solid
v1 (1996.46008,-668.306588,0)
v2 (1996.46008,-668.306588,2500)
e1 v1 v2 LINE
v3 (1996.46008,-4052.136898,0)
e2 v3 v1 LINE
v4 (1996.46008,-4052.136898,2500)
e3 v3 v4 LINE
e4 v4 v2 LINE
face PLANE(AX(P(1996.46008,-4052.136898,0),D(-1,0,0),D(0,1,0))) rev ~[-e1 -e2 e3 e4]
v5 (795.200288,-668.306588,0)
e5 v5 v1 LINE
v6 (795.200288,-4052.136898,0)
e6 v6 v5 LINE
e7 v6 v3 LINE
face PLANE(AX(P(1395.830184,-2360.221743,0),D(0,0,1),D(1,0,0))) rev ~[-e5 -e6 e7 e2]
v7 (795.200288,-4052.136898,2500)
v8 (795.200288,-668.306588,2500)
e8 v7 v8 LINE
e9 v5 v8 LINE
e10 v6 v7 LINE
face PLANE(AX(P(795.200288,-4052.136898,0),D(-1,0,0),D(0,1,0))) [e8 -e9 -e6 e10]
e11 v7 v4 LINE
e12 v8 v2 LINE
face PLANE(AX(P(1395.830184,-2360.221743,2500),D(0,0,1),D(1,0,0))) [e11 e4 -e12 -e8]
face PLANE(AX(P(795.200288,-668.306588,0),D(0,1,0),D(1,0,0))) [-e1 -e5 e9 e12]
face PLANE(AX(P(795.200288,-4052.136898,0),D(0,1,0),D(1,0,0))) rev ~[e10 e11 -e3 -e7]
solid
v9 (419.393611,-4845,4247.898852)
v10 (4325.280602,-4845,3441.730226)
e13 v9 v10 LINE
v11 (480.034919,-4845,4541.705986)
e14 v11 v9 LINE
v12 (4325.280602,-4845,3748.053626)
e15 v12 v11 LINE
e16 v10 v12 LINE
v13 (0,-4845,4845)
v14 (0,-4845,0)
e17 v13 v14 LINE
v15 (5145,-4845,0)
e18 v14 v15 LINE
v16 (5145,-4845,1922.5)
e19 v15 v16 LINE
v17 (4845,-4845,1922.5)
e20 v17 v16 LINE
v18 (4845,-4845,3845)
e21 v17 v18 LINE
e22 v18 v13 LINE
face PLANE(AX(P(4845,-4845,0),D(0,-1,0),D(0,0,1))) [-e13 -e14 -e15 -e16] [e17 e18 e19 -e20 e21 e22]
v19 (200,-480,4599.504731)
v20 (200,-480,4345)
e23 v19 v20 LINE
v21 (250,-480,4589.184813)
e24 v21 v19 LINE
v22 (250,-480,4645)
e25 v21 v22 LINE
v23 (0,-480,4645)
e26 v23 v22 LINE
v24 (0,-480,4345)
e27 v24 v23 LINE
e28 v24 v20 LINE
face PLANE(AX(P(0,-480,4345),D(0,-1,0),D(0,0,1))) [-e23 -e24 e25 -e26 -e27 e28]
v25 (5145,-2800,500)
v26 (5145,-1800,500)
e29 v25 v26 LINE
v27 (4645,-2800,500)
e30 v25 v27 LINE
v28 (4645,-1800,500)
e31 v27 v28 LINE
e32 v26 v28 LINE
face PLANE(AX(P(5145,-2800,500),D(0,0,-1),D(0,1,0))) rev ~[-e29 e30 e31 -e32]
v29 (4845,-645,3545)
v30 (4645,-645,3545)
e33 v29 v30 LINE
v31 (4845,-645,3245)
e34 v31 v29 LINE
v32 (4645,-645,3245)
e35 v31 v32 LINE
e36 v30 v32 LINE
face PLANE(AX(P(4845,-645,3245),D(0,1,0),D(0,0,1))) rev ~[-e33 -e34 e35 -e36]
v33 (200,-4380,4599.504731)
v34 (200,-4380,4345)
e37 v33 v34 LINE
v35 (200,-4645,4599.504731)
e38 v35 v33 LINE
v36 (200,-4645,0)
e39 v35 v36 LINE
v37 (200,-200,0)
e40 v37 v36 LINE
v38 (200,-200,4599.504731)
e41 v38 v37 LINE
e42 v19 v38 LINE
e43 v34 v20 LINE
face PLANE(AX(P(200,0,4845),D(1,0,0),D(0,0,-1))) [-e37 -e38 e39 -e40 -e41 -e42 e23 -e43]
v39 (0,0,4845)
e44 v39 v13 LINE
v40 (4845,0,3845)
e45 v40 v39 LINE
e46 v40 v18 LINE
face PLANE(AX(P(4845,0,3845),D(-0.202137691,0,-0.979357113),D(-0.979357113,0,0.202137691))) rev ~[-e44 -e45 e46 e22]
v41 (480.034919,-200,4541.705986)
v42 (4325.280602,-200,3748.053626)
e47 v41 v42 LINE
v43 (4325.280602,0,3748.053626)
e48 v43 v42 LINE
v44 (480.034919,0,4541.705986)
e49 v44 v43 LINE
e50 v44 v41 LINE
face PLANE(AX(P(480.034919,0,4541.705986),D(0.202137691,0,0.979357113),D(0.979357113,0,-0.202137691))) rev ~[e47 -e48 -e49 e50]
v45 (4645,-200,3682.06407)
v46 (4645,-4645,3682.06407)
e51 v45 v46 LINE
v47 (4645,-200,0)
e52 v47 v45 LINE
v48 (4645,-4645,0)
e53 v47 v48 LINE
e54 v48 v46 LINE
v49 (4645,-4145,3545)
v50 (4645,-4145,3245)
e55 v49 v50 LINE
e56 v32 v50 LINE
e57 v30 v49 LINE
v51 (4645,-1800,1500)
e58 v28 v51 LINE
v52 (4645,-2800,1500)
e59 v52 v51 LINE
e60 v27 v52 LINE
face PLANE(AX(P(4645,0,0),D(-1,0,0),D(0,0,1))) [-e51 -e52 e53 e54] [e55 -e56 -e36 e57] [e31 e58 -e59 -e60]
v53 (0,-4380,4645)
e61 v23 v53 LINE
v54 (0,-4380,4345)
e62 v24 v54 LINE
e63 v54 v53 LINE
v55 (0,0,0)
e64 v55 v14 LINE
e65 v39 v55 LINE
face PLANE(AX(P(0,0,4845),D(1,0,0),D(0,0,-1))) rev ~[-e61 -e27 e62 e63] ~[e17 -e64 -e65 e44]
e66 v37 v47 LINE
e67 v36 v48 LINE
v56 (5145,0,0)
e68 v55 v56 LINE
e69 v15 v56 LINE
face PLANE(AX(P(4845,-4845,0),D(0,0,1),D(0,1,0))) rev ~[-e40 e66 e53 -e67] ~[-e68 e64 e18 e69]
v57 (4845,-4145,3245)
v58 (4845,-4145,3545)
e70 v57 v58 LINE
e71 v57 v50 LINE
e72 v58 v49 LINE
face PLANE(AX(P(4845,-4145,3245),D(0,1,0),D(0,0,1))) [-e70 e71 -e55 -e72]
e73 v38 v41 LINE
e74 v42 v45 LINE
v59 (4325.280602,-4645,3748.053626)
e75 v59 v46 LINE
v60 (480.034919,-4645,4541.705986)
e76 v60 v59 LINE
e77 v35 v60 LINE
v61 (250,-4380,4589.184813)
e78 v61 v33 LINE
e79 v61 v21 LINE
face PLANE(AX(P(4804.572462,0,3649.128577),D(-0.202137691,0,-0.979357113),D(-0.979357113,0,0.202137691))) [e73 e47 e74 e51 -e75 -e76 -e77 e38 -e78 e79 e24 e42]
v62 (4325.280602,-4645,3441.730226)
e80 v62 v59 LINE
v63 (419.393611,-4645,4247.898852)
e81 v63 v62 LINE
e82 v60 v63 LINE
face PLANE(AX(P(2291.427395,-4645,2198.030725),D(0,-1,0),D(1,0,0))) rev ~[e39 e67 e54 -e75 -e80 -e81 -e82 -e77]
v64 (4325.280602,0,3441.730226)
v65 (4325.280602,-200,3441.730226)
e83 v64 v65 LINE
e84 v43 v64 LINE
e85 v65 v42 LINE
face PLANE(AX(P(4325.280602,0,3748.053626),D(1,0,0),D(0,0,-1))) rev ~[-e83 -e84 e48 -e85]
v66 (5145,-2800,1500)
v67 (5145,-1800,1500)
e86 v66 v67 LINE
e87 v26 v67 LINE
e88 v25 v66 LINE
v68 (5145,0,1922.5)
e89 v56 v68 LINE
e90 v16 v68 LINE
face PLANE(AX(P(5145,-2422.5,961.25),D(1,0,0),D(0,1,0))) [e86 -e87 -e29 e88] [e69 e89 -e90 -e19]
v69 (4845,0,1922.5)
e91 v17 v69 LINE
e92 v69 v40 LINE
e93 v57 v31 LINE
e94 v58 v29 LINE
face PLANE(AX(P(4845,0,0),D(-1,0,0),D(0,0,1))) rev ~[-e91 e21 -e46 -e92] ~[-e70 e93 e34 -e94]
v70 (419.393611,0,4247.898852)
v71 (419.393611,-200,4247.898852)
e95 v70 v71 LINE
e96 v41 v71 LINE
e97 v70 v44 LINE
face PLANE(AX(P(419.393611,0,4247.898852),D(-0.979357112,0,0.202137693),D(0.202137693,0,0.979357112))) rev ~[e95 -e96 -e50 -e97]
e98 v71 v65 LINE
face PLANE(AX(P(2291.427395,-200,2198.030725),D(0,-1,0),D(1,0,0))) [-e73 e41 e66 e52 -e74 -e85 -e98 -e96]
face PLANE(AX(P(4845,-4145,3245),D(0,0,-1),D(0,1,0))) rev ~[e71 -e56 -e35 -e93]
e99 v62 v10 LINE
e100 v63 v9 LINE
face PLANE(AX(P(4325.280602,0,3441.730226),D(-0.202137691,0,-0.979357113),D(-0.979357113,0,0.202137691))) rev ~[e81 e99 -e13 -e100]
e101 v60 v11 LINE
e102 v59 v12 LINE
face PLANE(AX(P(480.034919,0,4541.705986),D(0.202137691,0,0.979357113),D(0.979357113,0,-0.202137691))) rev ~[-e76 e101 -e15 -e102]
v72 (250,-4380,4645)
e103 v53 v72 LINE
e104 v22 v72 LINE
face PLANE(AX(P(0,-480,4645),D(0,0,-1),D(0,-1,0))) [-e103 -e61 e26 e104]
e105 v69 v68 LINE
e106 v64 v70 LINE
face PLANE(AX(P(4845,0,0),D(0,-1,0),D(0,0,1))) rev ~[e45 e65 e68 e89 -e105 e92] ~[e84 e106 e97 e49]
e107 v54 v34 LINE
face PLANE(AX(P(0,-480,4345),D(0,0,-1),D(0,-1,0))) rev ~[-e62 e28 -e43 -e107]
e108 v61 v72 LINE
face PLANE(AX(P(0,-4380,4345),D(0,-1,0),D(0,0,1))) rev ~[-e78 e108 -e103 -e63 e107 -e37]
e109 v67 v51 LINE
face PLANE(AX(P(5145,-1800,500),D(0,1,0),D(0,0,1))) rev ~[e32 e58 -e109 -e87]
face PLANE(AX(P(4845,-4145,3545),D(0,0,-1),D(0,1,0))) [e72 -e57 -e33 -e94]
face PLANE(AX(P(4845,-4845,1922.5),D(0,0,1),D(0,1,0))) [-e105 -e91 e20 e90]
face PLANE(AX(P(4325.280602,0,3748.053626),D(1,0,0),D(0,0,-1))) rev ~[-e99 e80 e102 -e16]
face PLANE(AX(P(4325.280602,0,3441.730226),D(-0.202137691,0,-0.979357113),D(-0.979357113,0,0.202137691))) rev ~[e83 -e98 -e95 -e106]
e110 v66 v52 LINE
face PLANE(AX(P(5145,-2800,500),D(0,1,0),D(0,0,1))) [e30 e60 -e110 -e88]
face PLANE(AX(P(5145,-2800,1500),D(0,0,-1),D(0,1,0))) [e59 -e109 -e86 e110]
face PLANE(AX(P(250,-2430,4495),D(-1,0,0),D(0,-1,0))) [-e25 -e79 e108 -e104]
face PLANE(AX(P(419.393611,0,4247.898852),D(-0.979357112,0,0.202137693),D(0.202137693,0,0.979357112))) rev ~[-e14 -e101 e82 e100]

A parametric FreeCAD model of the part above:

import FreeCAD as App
import Part
import Sketcher
from FreeCAD import Vector
Q = App.Units.Quantity


def faces_at(feature, points):
    """Names of the faces that lie closest to the given points."""
    faces = feature.Shape.Faces
    near = lambda p: min(range(len(faces)), key=lambda i: faces[i].distToShape(Part.Vertex(*p))[0])
    return sorted({f"Face{near(p) + 1}" for p in points})

doc = App.newDocument("Part")
body = doc.addObject("PartDesign::Body", "Body")

# Sketch on XZ plane
sketch1 = doc.addObject("Sketcher::SketchObject", "Sketch")
body.addObject(sketch1)
sketch1.AttachmentSupport = (doc.XZ_Plane, [""])
sketch1.MapMode = "FlatFace"
sketch1.addGeometry([
    Part.LineSegment(Vector(0, 4845, 0), Vector(0, 0, 0)),
    Part.LineSegment(Vector(0, 0, 0), Vector(4845, 0, 0)),
    Part.LineSegment(Vector(4845, 0, 0), Vector(4845, 3845, 0)),
    Part.LineSegment(Vector(4845, 3845, 0), Vector(0, 4845, 0)),
], False)
sketch1.addConstraint([
    Sketcher.Constraint("Coincident", 0, 2, 1, 1),
    Sketcher.Constraint("Coincident", 1, 2, 2, 1),
    Sketcher.Constraint("Coincident", 2, 2, 3, 1),
    Sketcher.Constraint("Coincident", 3, 2, 0, 1),
    Sketcher.Constraint("Vertical", 0),
    Sketcher.Constraint("Horizontal", 1),
    Sketcher.Constraint("Vertical", 2),
    Sketcher.Constraint("Coincident", 0, 2, -1, 1),
    Sketcher.Constraint("Equal", 1, 0),
    Sketcher.Constraint("DistanceX", 1, 1, 1, 2, Q("4845 mm")),
    Sketcher.Constraint("DistanceY", 2, 1, 2, 2, Q("3845 mm")),
])
pad1 = doc.addObject("PartDesign::Pad", "Pad")
body.addObject(pad1)
pad1.Profile = sketch1
pad1.Length = 4845
doc.recompute()

thickness = doc.addObject("PartDesign::Thickness", "Thickness")
body.addObject(thickness)
thickness.Base = (pad1, faces_at(pad1, [(2422.5, -2422.5, 0)]))
thickness.Value = 200
thickness.Reversed = True
thickness.Join = "Arc"

# Sketch on XZ plane
sketch2 = doc.addObject("Sketcher::SketchObject", "Sketch001")
body.addObject(sketch2)
sketch2.AttachmentSupport = (doc.XZ_Plane, [""])
sketch2.MapMode = "FlatFace"
sketch2.addGeometry([
    Part.LineSegment(Vector(480.034919, 4541.705986, 0), Vector(4325.280602, 3748.053626, 0)),
    Part.LineSegment(Vector(4325.280602, 3748.053626, 0), Vector(4325.280602, 3441.730226, 0)),
    Part.LineSegment(Vector(4325.280602, 3441.730226, 0), Vector(419.393611, 4247.898852, 0)),
    Part.LineSegment(Vector(419.393611, 4247.898852, 0), Vector(480.034919, 4541.705986, 0)),
], False)
sketch2.addConstraint([
    Sketcher.Constraint("Coincident", 0, 2, 1, 1),
    Sketcher.Constraint("Coincident", 1, 2, 2, 1),
    Sketcher.Constraint("Coincident", 2, 2, 3, 1),
    Sketcher.Constraint("Coincident", 3, 2, 0, 1),
    Sketcher.Constraint("Vertical", 1),
    Sketcher.Constraint("Parallel", 0, 2),
    Sketcher.Constraint("Perpendicular", 2, 3),
    Sketcher.Constraint("Distance", 3, Q("300 mm")),
    Sketcher.Constraint("DistanceY", 1, 2, 1, 1, Q("306.3234 mm")),
    Sketcher.Constraint("DistanceX", -1, 1, 0, 2, Q("4325.280602 mm")),
    Sketcher.Constraint("Distance", 2, Q("3988.21527 mm")),
    Sketcher.Constraint("DistanceY", -1, 1, 0, 2, Q("3748.053626 mm")),
])
pocket1 = doc.addObject("PartDesign::Pocket", "Pocket")
body.addObject(pocket1)
pocket1.Profile = sketch2
pocket1.Type = "ThroughAll"
pocket1.Reversed = True

# Sketch on YZ plane
sketch3 = doc.addObject("Sketcher::SketchObject", "Sketch002")
body.addObject(sketch3)
sketch3.AttachmentSupport = (doc.YZ_Plane, [""])
sketch3.MapMode = "FlatFace"
sketch3.addGeometry([
    Part.LineSegment(Vector(-480, 4645, 0), Vector(-480, 4345, 0)),
    Part.LineSegment(Vector(-480, 4345, 0), Vector(-4380, 4345, 0)),
    Part.LineSegment(Vector(-4380, 4345, 0), Vector(-4380, 4645, 0)),
    Part.LineSegment(Vector(-4380, 4645, 0), Vector(-480, 4645, 0)),
], False)
sketch3.addConstraint([
    Sketcher.Constraint("Coincident", 0, 2, 1, 1),
    Sketcher.Constraint("Coincident", 1, 2, 2, 1),
    Sketcher.Constraint("Coincident", 2, 2, 3, 1),
    Sketcher.Constraint("Coincident", 3, 2, 0, 1),
    Sketcher.Constraint("Vertical", 0),
    Sketcher.Constraint("Horizontal", 1),
    Sketcher.Constraint("Vertical", 2),
    Sketcher.Constraint("Horizontal", 3),
    Sketcher.Constraint("DistanceX", 1, 2, 1, 1, Q("3900 mm")),
    Sketcher.Constraint("DistanceY", 0, 2, 0, 1, Q("300 mm")),
    Sketcher.Constraint("DistanceX", 0, 2, -1, 1, Q("480 mm")),
    Sketcher.Constraint("DistanceY", -1, 1, 0, 2, Q("4345 mm")),
])
pocket2 = doc.addObject("PartDesign::Pocket", "Pocket001")
body.addObject(pocket2)
pocket2.Profile = sketch3
pocket2.Length = 250
pocket2.Reversed = True

# Sketch on YZ plane
sketch4 = doc.addObject("Sketcher::SketchObject", "Sketch003")
body.addObject(sketch4)
sketch4.AttachmentSupport = (doc.YZ_Plane, [""])
sketch4.MapMode = "FlatFace"
sketch4.AttachmentOffset = App.Placement(Vector(0, 0, 4845), App.Rotation())
sketch4.addGeometry([
    Part.LineSegment(Vector(-4845, 1922.5, 0), Vector(-4845, 0, 0)),
    Part.LineSegment(Vector(-4845, 0, 0), Vector(0, 0, 0)),
    Part.LineSegment(Vector(0, 0, 0), Vector(0, 1922.5, 0)),
    Part.LineSegment(Vector(0, 1922.5, 0), Vector(-4845, 1922.5, 0)),
], False)
sketch4.addConstraint([
    Sketcher.Constraint("Coincident", 0, 2, 1, 1),
    Sketcher.Constraint("Coincident", 1, 2, 2, 1),
    Sketcher.Constraint("Coincident", 2, 2, 3, 1),
    Sketcher.Constraint("Coincident", 3, 2, 0, 1),
    Sketcher.Constraint("Vertical", 0),
    Sketcher.Constraint("Horizontal", 1),
    Sketcher.Constraint("Vertical", 2),
    Sketcher.Constraint("Horizontal", 3),
    Sketcher.Constraint("Coincident", 1, 2, -1, 1),
    Sketcher.Constraint("DistanceX", 1, 1, 1, 2, Q("4845 mm")),
    Sketcher.Constraint("DistanceY", 0, 2, 0, 1, Q("1922.5 mm")),
])
pad2 = doc.addObject("PartDesign::Pad", "Pad001")
body.addObject(pad2)
pad2.Profile = sketch4
pad2.Length = 300

# Sketch on YZ plane
sketch5 = doc.addObject("Sketcher::SketchObject", "Sketch004")
body.addObject(sketch5)
sketch5.AttachmentSupport = (doc.YZ_Plane, [""])
sketch5.MapMode = "FlatFace"
sketch5.AttachmentOffset = App.Placement(Vector(0, 0, 5145), App.Rotation())
sketch5.addGeometry([
    Part.LineSegment(Vector(-2800, 1500, 0), Vector(-2800, 500, 0)),
    Part.LineSegment(Vector(-2800, 500, 0), Vector(-1800, 500, 0)),
    Part.LineSegment(Vector(-1800, 500, 0), Vector(-1800, 1500, 0)),
    Part.LineSegment(Vector(-1800, 1500, 0), Vector(-2800, 1500, 0)),
], False)
sketch5.addConstraint([
    Sketcher.Constraint("Coincident", 0, 2, 1, 1),
    Sketcher.Constraint("Coincident", 1, 2, 2, 1),
    Sketcher.Constraint("Coincident", 2, 2, 3, 1),
    Sketcher.Constraint("Coincident", 3, 2, 0, 1),
    Sketcher.Constraint("Vertical", 0),
    Sketcher.Constraint("Horizontal", 1),
    Sketcher.Constraint("Vertical", 2),
    Sketcher.Constraint("Horizontal", 3),
    Sketcher.Constraint("Equal", 3, 0),
    Sketcher.Constraint("DistanceX", 1, 1, 1, 2, Q("1000 mm")),
    Sketcher.Constraint("DistanceX", 0, 2, -1, 1, Q("2800 mm")),
    Sketcher.Constraint("DistanceY", -1, 1, 0, 2, Q("500 mm")),
])
pocket3 = doc.addObject("PartDesign::Pocket", "Pocket002")
body.addObject(pocket3)
pocket3.Profile = sketch5
pocket3.Length = 500

# Sketch on YZ plane
sketch6 = doc.addObject("Sketcher::SketchObject", "Sketch005")
body.addObject(sketch6)
sketch6.AttachmentSupport = (doc.YZ_Plane, [""])
sketch6.MapMode = "FlatFace"
sketch6.AttachmentOffset = App.Placement(Vector(0, 0, 4845), App.Rotation())
sketch6.addGeometry([
    Part.LineSegment(Vector(-4145, 3545, 0), Vector(-4145, 3245, 0)),
    Part.LineSegment(Vector(-4145, 3245, 0), Vector(-645, 3245, 0)),
    Part.LineSegment(Vector(-645, 3245, 0), Vector(-645, 3545, 0)),
    Part.LineSegment(Vector(-645, 3545, 0), Vector(-4145, 3545, 0)),
], False)
sketch6.addConstraint([
    Sketcher.Constraint("Coincident", 0, 2, 1, 1),
    Sketcher.Constraint("Coincident", 1, 2, 2, 1),
    Sketcher.Constraint("Coincident", 2, 2, 3, 1),
    Sketcher.Constraint("Coincident", 3, 2, 0, 1),
    Sketcher.Constraint("Vertical", 0),
    Sketcher.Constraint("Horizontal", 1),
    Sketcher.Constraint("Vertical", 2),
    Sketcher.Constraint("Horizontal", 3),
    Sketcher.Constraint("DistanceX", 1, 1, 1, 2, Q("3500 mm")),
    Sketcher.Constraint("DistanceY", 0, 2, 0, 1, Q("300 mm")),
    Sketcher.Constraint("DistanceX", 0, 2, -1, 1, Q("4145 mm")),
    Sketcher.Constraint("DistanceY", -1, 1, 0, 2, Q("3245 mm")),
])
pocket4 = doc.addObject("PartDesign::Pocket", "Pocket003")
body.addObject(pocket4)
pocket4.Profile = sketch6
pocket4.Length = 350
body2 = doc.addObject("PartDesign::Body", "Body001")

# Sketch on XY plane
sketch7 = doc.addObject("Sketcher::SketchObject", "Sketch006")
body2.addObject(sketch7)
sketch7.AttachmentSupport = (doc.getObject("XY_Plane001"), [""])
sketch7.MapMode = "FlatFace"
sketch7.addGeometry([
    Part.LineSegment(Vector(795.200288, -668.306588, 0), Vector(795.200288, -4052.136898, 0)),
    Part.LineSegment(Vector(795.200288, -4052.136898, 0), Vector(1996.46008, -4052.136898, 0)),
    Part.LineSegment(Vector(1996.46008, -4052.136898, 0), Vector(1996.46008, -668.306588, 0)),
    Part.LineSegment(Vector(1996.46008, -668.306588, 0), Vector(795.200288, -668.306588, 0)),
], False)
sketch7.addConstraint([
    Sketcher.Constraint("Coincident", 0, 2, 1, 1),
    Sketcher.Constraint("Coincident", 1, 2, 2, 1),
    Sketcher.Constraint("Coincident", 2, 2, 3, 1),
    Sketcher.Constraint("Coincident", 3, 2, 0, 1),
    Sketcher.Constraint("Vertical", 0),
    Sketcher.Constraint("Horizontal", 1),
    Sketcher.Constraint("Vertical", 2),
    Sketcher.Constraint("Horizontal", 3),
    Sketcher.Constraint("DistanceX", 1, 1, 1, 2, Q("1201.259792 mm")),
    Sketcher.Constraint("DistanceY", 0, 2, 0, 1, Q("3383.830309 mm")),
    Sketcher.Constraint("DistanceX", -1, 1, 0, 2, Q("795.200288 mm")),
    Sketcher.Constraint("DistanceY", 2, 2, -1, 1, Q("668.306588 mm")),
])
pad3 = doc.addObject("PartDesign::Pad", "Pad002")
body2.addObject(pad3)
pad3.Profile = sketch7
pad3.Length = 2500

doc.recompute()
